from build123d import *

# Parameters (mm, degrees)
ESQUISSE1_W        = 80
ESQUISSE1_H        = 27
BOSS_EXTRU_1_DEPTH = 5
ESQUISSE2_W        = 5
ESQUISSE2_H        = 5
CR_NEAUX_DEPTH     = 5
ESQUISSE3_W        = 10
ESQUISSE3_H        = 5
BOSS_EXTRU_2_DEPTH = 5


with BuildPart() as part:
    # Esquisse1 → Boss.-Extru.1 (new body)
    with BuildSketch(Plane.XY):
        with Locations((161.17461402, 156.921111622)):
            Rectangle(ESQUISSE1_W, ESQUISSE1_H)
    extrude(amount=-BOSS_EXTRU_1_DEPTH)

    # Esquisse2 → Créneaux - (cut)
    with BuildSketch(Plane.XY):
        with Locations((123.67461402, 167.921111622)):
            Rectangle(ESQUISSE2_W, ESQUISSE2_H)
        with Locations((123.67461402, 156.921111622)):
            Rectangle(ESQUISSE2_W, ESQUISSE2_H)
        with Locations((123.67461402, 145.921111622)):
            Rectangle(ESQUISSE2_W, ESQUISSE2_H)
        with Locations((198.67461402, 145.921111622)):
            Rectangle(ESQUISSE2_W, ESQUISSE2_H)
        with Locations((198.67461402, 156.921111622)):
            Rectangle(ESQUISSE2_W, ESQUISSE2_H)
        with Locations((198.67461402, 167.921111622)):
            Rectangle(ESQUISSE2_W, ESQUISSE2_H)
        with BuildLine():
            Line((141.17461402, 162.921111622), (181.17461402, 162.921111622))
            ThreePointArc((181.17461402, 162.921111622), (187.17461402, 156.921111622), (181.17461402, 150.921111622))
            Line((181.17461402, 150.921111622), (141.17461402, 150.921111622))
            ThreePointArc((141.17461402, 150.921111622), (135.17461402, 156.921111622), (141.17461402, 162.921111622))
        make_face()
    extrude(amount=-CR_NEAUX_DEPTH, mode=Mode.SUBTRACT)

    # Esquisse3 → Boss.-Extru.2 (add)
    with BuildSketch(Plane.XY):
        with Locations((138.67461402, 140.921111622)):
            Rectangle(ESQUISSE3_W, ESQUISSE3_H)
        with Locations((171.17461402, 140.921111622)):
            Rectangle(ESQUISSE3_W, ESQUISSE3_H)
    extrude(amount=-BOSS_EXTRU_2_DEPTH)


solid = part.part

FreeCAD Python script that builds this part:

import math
import FreeCAD as App
import Part
import Sketcher

V = App.Vector
Q = App.Units.Quantity


def add_polygon(sketch, points):
    """Adds a closed chain of lines whose ends are joined by coincident constraints."""
    first, n = sketch.GeometryCount, len(points)
    for a, b in zip(points, points[1:] + points[:1]):
        sketch.addGeometry(Part.LineSegment(App.Vector(*a, 0), App.Vector(*b, 0)), False)
    for i in range(n):
        sketch.addConstraint(Sketcher.Constraint("Coincident", first + i, 2, first + (i + 1) % n, 1))

doc = App.newDocument("Part")
body = doc.addObject("PartDesign::Body", "Body")

# Sketch on XY plane
sketch1 = doc.addObject("Sketcher::SketchObject", "Sketch")
body.addObject(sketch1)
sketch1.AttachmentSupport = (doc.XY_Plane, [""])
sketch1.MapMode = "FlatFace"
add_polygon(sketch1, [(121, 170), (121, 143), (201, 143), (201, 170)])  # lines 0-3
sketch1.addConstraint(Sketcher.Constraint("Vertical", 0))
sketch1.addConstraint(Sketcher.Constraint("Horizontal", 1))
sketch1.addConstraint(Sketcher.Constraint("Vertical", 2))
sketch1.addConstraint(Sketcher.Constraint("Horizontal", 3))
sketch1.addConstraint(Sketcher.Constraint("DistanceX", 1, 1, 1, 2, Q("80 mm")))
sketch1.addConstraint(Sketcher.Constraint("DistanceY", 0, 2, 0, 1, Q("27 mm")))
sketch1.addConstraint(Sketcher.Constraint("DistanceY", -1, 1, 0, 2, Q("143.421112 mm")))
sketch1.addConstraint(Sketcher.Constraint("DistanceX", -1, 1, 0, 2, Q("121.174614 mm")))
pad1 = doc.addObject("PartDesign::Pad", "Pad")
body.addObject(pad1)
pad1.Profile = sketch1
pad1.Length = 5
pad1.Reversed = True

# Sketch on XY plane
sketch2 = doc.addObject("Sketcher::SketchObject", "Sketch001")
body.addObject(sketch2)
sketch2.AttachmentSupport = (doc.XY_Plane, [""])
sketch2.MapMode = "FlatFace"
add_polygon(sketch2, [(121, 170), (121, 165), (126, 165), (126, 170)])  # lines 0-3
add_polygon(sketch2, [(121, 159), (121, 154), (126, 154), (126, 159)])  # lines 4-7
add_polygon(sketch2, [(121, 148), (121, 143), (126, 143), (126, 148)])  # lines 8-11
add_polygon(sketch2, [(196, 148), (196, 143), (201, 143), (201, 148)])  # lines 12-15
add_polygon(sketch2, [(196, 159), (196, 154), (201, 154), (201, 159)])  # lines 16-19
add_polygon(sketch2, [(196, 170), (196, 165), (201, 165), (201, 170)])  # lines 20-23
sketch2.addGeometry(Part.LineSegment(V(181, 163, 0), V(141, 163, 0)), False)  # 24
sketch2.addGeometry(Part.ArcOfCircle(Part.Circle(V(141, 157, 0), V(0, 0, 1), 6), math.radians(90), math.radians(270)), False)  # 25
sketch2.addGeometry(Part.LineSegment(V(141, 151, 0), V(181, 151, 0)), False)  # 26
sketch2.addGeometry(Part.ArcOfCircle(Part.Circle(V(181, 157, 0), V(0, 0, 1), 6), math.radians(-90), math.radians(90)), False)  # 27
sketch2.addConstraint(Sketcher.Constraint("Tangent", 24, 2, 25, 1))
sketch2.addConstraint(Sketcher.Constraint("Tangent", 25, 2, 26, 1))
sketch2.addConstraint(Sketcher.Constraint("Tangent", 26, 2, 27, 1))
sketch2.addConstraint(Sketcher.Constraint("Tangent", 27, 2, 24, 1))
sketch2.addConstraint(Sketcher.Constraint("Vertical", 0))
sketch2.addConstraint(Sketcher.Constraint("Horizontal", 1))
sketch2.addConstraint(Sketcher.Constraint("Vertical", 2))
sketch2.addConstraint(Sketcher.Constraint("Horizontal", 3))
sketch2.addConstraint(Sketcher.Constraint("Vertical", 4))
sketch2.addConstraint(Sketcher.Constraint("Horizontal", 5))
sketch2.addConstraint(Sketcher.Constraint("Vertical", 6))
sketch2.addConstraint(Sketcher.Constraint("Horizontal", 7))
sketch2.addConstraint(Sketcher.Constraint("Vertical", 8))
sketch2.addConstraint(Sketcher.Constraint("Horizontal", 9))
sketch2.addConstraint(Sketcher.Constraint("Vertical", 10))
sketch2.addConstraint(Sketcher.Constraint("Horizontal", 11))
sketch2.addConstraint(Sketcher.Constraint("Vertical", 12))
sketch2.addConstraint(Sketcher.Constraint("Horizontal", 13))
sketch2.addConstraint(Sketcher.Constraint("Vertical", 14))
sketch2.addConstraint(Sketcher.Constraint("Horizontal", 15))
sketch2.addConstraint(Sketcher.Constraint("Vertical", 16))
sketch2.addConstraint(Sketcher.Constraint("Horizontal", 17))
sketch2.addConstraint(Sketcher.Constraint("Vertical", 18))
sketch2.addConstraint(Sketcher.Constraint("Horizontal", 19))
sketch2.addConstraint(Sketcher.Constraint("Vertical", 20))
sketch2.addConstraint(Sketcher.Constraint("Horizontal", 21))
sketch2.addConstraint(Sketcher.Constraint("Vertical", 22))
sketch2.addConstraint(Sketcher.Constraint("Horizontal", 23))
sketch2.addConstraint(Sketcher.Constraint("Horizontal", 24))
sketch2.addConstraint(Sketcher.Constraint("Horizontal", 26))
sketch2.addConstraint(Sketcher.Constraint("Horizontal", 9, 2, 12, 2))
sketch2.addConstraint(Sketcher.Constraint("Horizontal", 11, 2, 14, 2))
sketch2.addConstraint(Sketcher.Constraint("Horizontal", 5, 2, 16, 2))
sketch2.addConstraint(Sketcher.Constraint("Horizontal", 7, 2, 18, 2))
sketch2.addConstraint(Sketcher.Constraint("Horizontal", 1, 2, 20, 2))
sketch2.addConstraint(Sketcher.Constraint("Horizontal", 3, 2, 22, 2))
sketch2.addConstraint(Sketcher.Constraint("Vertical", 3, 2, 4, 2))
sketch2.addConstraint(Sketcher.Constraint("Vertical", 2, 2, 5, 2))
sketch2.addConstraint(Sketcher.Constraint("Vertical", 7, 2, 8, 2))
sketch2.addConstraint(Sketcher.Constraint("Vertical", 6, 2, 9, 2))
sketch2.addConstraint(Sketcher.Constraint("Vertical", 15, 2, 16, 2))
sketch2.addConstraint(Sketcher.Constraint("Vertical", 14, 2, 17, 2))
sketch2.addConstraint(Sketcher.Constraint("Vertical", 19, 2, 20, 2))
sketch2.addConstraint(Sketcher.Constraint("Vertical", 18, 2, 21, 2))
sketch2.addConstraint(Sketcher.Constraint("Equal", 11, 13))
sketch2.addConstraint(Sketcher.Constraint("Equal", 23, 0))
sketch2.addConstraint(Sketcher.Constraint("Equal", 2, 4))
sketch2.addConstraint(Sketcher.Constraint("Equal", 6, 8))
sketch2.addConstraint(Sketcher.Constraint("Radius", 25, Q("6 mm")))
sketch2.addConstraint(Sketcher.Constraint("DistanceX", 1, 1, 1, 2, Q("5 mm")))
sketch2.addConstraint(Sketcher.Constraint("DistanceX", 24, 2, 24, 1, Q("40 mm")))
sketch2.addConstraint(Sketcher.Constraint("DistanceX", 0, 2, 25, 3, Q("20 mm")))
sketch2.addConstraint(Sketcher.Constraint("DistanceY", 4, 2, 0, 2, Q("11 mm")))
sketch2.addConstraint(Sketcher.Constraint("DistanceY", 8, 2, 4, 2, Q("11 mm")))
sketch2.addConstraint(Sketcher.Constraint("DistanceX", 27, 3, 12, 2, Q("15 mm")))
sketch2.addConstraint(Sketcher.Constraint("DistanceY", 25, 3, 0, 2, Q("8.5 mm")))
sketch2.addConstraint(Sketcher.Constraint("DistanceY", -1, 1, 25, 3, Q("156.921112 mm")))
sketch2.addConstraint(Sketcher.Constraint("DistanceX", -1, 1, 25, 3, Q("141.174614 mm")))
pocket1 = doc.addObject("PartDesign::Pocket", "Pocket")
body.addObject(pocket1)
pocket1.Profile = sketch2
pocket1.Length = 5

# Sketch on XY plane
sketch3 = doc.addObject("Sketcher::SketchObject", "Sketch002")
body.addObject(sketch3)
sketch3.AttachmentSupport = (doc.XY_Plane, [""])
sketch3.MapMode = "FlatFace"
add_polygon(sketch3, [(134, 143), (134, 138), (144, 138), (144, 143)])  # lines 0-3
add_polygon(sketch3, [(166, 143), (166, 138), (176, 138), (176, 143)])  # lines 4-7
sketch3.addConstraint(Sketcher.Constraint("Vertical", 0))
sketch3.addConstraint(Sketcher.Constraint("Horizontal", 1))
sketch3.addConstraint(Sketcher.Constraint("Vertical", 2))
sketch3.addConstraint(Sketcher.Constraint("Horizontal", 3))
sketch3.addConstraint(Sketcher.Constraint("Vertical", 4))
sketch3.addConstraint(Sketcher.Constraint("Horizontal", 5))
sketch3.addConstraint(Sketcher.Constraint("Vertical", 6))
sketch3.addConstraint(Sketcher.Constraint("Horizontal", 7))
sketch3.addConstraint(Sketcher.Constraint("Horizontal", 1, 2, 4, 2))
sketch3.addConstraint(Sketcher.Constraint("Horizontal", 3, 2, 6, 2))
sketch3.addConstraint(Sketcher.Constraint("Equal", 3, 5))
sketch3.addConstraint(Sketcher.Constraint("DistanceX", 1, 1, 1, 2, Q("10 mm")))
sketch3.addConstraint(Sketcher.Constraint("DistanceY", 0, 2, 0, 1, Q("5 mm")))
sketch3.addConstraint(Sketcher.Constraint("DistanceX", 1, 2, 4, 2, Q("22.5 mm")))
sketch3.addConstraint(Sketcher.Constraint("DistanceY", -1, 1, 0, 2, Q("138.421112 mm")))
sketch3.addConstraint(Sketcher.Constraint("DistanceX", -1, 1, 0, 2, Q("133.674614 mm")))
pad2 = doc.addObject("PartDesign::Pad", "Pad001")
body.addObject(pad2)
pad2.Profile = sketch3
pad2.Length = 5
pad2.Reversed = True

doc.recompute()
